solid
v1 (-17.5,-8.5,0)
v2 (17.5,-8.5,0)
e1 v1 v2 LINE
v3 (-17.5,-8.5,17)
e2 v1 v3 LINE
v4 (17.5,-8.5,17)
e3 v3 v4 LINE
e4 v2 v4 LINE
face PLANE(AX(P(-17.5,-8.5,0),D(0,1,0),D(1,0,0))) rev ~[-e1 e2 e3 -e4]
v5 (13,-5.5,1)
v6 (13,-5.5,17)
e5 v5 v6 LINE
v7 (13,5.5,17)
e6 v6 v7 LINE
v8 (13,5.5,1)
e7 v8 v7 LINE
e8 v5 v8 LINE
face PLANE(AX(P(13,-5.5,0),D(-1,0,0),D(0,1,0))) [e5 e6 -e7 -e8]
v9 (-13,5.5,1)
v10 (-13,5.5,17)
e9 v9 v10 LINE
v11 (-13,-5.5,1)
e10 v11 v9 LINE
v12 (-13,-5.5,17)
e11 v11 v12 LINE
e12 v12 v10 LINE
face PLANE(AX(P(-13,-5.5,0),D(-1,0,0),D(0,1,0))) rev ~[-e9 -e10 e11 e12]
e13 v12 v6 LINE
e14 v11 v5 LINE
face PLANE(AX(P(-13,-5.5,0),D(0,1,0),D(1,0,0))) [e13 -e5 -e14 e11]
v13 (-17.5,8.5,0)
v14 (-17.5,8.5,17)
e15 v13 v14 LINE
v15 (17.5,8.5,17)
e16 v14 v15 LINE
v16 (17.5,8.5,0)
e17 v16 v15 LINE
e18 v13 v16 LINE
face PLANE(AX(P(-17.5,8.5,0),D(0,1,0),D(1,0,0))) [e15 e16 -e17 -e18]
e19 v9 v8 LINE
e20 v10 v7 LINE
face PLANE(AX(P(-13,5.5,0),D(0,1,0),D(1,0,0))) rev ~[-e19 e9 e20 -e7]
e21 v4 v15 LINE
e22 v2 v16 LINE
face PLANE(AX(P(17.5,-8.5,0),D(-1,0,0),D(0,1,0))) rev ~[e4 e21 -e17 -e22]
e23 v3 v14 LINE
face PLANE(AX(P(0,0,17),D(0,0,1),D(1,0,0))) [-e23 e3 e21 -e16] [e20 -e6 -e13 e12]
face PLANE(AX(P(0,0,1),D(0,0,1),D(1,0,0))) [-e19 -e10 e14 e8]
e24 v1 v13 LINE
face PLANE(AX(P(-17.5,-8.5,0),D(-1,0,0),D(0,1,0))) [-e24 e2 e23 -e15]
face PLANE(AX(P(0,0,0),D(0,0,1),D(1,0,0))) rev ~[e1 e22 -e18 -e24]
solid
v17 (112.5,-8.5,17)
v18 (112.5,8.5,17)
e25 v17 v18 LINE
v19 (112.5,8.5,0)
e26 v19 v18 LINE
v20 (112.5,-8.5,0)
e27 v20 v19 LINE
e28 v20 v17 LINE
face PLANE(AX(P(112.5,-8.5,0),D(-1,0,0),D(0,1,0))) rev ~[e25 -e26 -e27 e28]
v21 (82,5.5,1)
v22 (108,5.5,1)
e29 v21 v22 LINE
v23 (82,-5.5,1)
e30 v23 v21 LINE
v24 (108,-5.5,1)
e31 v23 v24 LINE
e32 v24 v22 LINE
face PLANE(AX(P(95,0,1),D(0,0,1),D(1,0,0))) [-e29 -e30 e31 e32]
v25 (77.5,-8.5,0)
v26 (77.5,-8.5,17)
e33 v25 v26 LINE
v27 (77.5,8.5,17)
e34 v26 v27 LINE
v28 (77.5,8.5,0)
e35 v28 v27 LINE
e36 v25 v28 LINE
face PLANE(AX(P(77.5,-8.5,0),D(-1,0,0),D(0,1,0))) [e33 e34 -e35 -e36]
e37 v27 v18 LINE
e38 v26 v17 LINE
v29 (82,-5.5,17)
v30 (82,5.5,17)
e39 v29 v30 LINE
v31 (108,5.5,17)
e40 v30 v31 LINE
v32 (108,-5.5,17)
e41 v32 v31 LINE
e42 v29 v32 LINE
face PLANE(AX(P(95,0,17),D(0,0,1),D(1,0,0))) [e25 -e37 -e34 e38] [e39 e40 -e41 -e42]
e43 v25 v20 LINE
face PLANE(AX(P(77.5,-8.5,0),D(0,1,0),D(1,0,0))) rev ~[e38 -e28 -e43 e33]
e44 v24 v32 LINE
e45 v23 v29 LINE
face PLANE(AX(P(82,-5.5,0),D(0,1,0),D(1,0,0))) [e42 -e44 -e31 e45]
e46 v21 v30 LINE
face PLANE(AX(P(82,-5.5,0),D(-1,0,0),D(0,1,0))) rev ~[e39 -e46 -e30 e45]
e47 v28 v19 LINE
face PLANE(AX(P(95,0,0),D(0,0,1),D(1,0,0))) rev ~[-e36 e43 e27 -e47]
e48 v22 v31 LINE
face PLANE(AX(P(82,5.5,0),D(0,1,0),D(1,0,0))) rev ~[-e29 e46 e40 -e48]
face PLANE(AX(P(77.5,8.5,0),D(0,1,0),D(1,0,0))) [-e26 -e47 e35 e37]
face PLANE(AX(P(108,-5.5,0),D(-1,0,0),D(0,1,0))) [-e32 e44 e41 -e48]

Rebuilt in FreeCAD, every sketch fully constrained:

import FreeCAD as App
import Part
import Sketcher

V = App.Vector

doc = App.newDocument("Part")
body = doc.addObject("PartDesign::Body", "Body")

# Sketch on XY plane
sketch1 = body.newObject("Sketcher::SketchObject", "Sketch")
sketch1.AttachmentSupport = (doc.getObject("XY_Plane"), [""])
sketch1.MapMode = "FlatFace"
sketch1.addGeometry(Part.LineSegment(V(-13, 6, 0), V(-13, -6, 0)), False)
sketch1.addGeometry(Part.LineSegment(V(-13, -6, 0), V(13, -6, 0)), False)
sketch1.addGeometry(Part.LineSegment(V(13, -6, 0), V(13, 6, 0)), False)
sketch1.addGeometry(Part.LineSegment(V(13, 6, 0), V(-13, 6, 0)), False)
sketch1.addConstraint(Sketcher.Constraint("Coincident", 0, 2, 1, 1))
sketch1.addConstraint(Sketcher.Constraint("Coincident", 1, 2, 2, 1))
sketch1.addConstraint(Sketcher.Constraint("Coincident", 2, 2, 3, 1))
sketch1.addConstraint(Sketcher.Constraint("Coincident", 3, 2, 0, 1))
sketch1.addConstraint(Sketcher.Constraint("Vertical", 0))
sketch1.addConstraint(Sketcher.Constraint("Horizontal", 1))
sketch1.addConstraint(Sketcher.Constraint("Vertical", 2))
sketch1.addConstraint(Sketcher.Constraint("Horizontal", 3))
sketch1.addConstraint(Sketcher.Constraint("Symmetric", 0, 2, 2, 2, -1, 1))
sketch1.addConstraint(Sketcher.Constraint("DistanceX", 1, 1, 1, 2, 26.0))
sketch1.addConstraint(Sketcher.Constraint("DistanceY", 0, 2, 0, 1, 11.0))
pad1 = body.newObject("PartDesign::Pad", "Pad")
pad1.Profile = sketch1
pad1.Length = 1

# Sketch on XY plane
sketch2 = body.newObject("Sketcher::SketchObject", "Sketch001")
sketch2.AttachmentSupport = (doc.getObject("XY_Plane"), [""])
sketch2.MapMode = "FlatFace"
sketch2.addGeometry(Part.LineSegment(V(-18, 8, 0), V(-18, -8, 0)), False)
sketch2.addGeometry(Part.LineSegment(V(-18, -8, 0), V(18, -8, 0)), False)
sketch2.addGeometry(Part.LineSegment(V(18, -8, 0), V(18, 8, 0)), False)
sketch2.addGeometry(Part.LineSegment(V(18, 8, 0), V(-18, 8, 0)), False)
sketch2.addGeometry(Part.LineSegment(V(13, -6, 0), V(-13, -6, 0)), False)
sketch2.addGeometry(Part.LineSegment(V(-13, -6, 0), V(-13, 6, 0)), False)
sketch2.addGeometry(Part.LineSegment(V(-13, 6, 0), V(13, 6, 0)), False)
sketch2.addGeometry(Part.LineSegment(V(13, 6, 0), V(13, -6, 0)), False)
sketch2.addConstraint(Sketcher.Constraint("Coincident", 0, 2, 1, 1))
sketch2.addConstraint(Sketcher.Constraint("Coincident", 1, 2, 2, 1))
sketch2.addConstraint(Sketcher.Constraint("Coincident", 2, 2, 3, 1))
sketch2.addConstraint(Sketcher.Constraint("Coincident", 3, 2, 0, 1))
sketch2.addConstraint(Sketcher.Constraint("Coincident", 4, 2, 5, 1))
sketch2.addConstraint(Sketcher.Constraint("Coincident", 5, 2, 6, 1))
sketch2.addConstraint(Sketcher.Constraint("Coincident", 6, 2, 7, 1))
sketch2.addConstraint(Sketcher.Constraint("Coincident", 7, 2, 4, 1))
sketch2.addConstraint(Sketcher.Constraint("Vertical", 0))
sketch2.addConstraint(Sketcher.Constraint("Horizontal", 1))
sketch2.addConstraint(Sketcher.Constraint("Vertical", 2))
sketch2.addConstraint(Sketcher.Constraint("Horizontal", 3))
sketch2.addConstraint(Sketcher.Constraint("Horizontal", 4))
sketch2.addConstraint(Sketcher.Constraint("Vertical", 5))
sketch2.addConstraint(Sketcher.Constraint("Horizontal", 6))
sketch2.addConstraint(Sketcher.Constraint("Vertical", 7))
sketch2.addConstraint(Sketcher.Constraint("Symmetric", 0, 2, 2, 2, -1, 1))
sketch2.addConstraint(Sketcher.Constraint("Symmetric", 4, 2, 6, 2, -1, 1))
sketch2.addConstraint(Sketcher.Constraint("DistanceX", 1, 1, 1, 2, 35.0))
sketch2.addConstraint(Sketcher.Constraint("DistanceX", 4, 2, 4, 1, 26.0))
sketch2.addConstraint(Sketcher.Constraint("DistanceY", 0, 2, 0, 1, 17.0))
sketch2.addConstraint(Sketcher.Constraint("DistanceY", 5, 1, 5, 2, 11.0))
pad2 = body.newObject("PartDesign::Pad", "Pad001")
pad2.Profile = sketch2
pad2.Length = 17
body2 = doc.addObject("PartDesign::Body", "Body001")

# Sketch on XY plane
sketch3 = body2.newObject("Sketcher::SketchObject", "Sketch002")
sketch3.AttachmentSupport = (doc.getObject("XY_Plane001"), [""])
sketch3.MapMode = "FlatFace"
sketch3.addGeometry(Part.LineSegment(V(82, 6, 0), V(82, -6, 0)), False)
sketch3.addGeometry(Part.LineSegment(V(82, -6, 0), V(108, -6, 0)), False)
sketch3.addGeometry(Part.LineSegment(V(108, -6, 0), V(108, 6, 0)), False)
sketch3.addGeometry(Part.LineSegment(V(108, 6, 0), V(82, 6, 0)), False)
sketch3.addConstraint(Sketcher.Constraint("Coincident", 0, 2, 1, 1))
sketch3.addConstraint(Sketcher.Constraint("Coincident", 1, 2, 2, 1))
sketch3.addConstraint(Sketcher.Constraint("Coincident", 2, 2, 3, 1))
sketch3.addConstraint(Sketcher.Constraint("Coincident", 3, 2, 0, 1))
sketch3.addConstraint(Sketcher.Constraint("Vertical", 0))
sketch3.addConstraint(Sketcher.Constraint("Horizontal", 1))
sketch3.addConstraint(Sketcher.Constraint("Vertical", 2))
sketch3.addConstraint(Sketcher.Constraint("Horizontal", 3))
sketch3.addConstraint(Sketcher.Constraint("DistanceX", 1, 1, 1, 2, 26.0))
sketch3.addConstraint(Sketcher.Constraint("DistanceY", 0, 2, 0, 1, 11.0))
sketch3.addConstraint(Sketcher.Constraint("DistanceX", -1, 1, 0, 2, 82.0))
sketch3.addConstraint(Sketcher.Constraint("DistanceY", 0, 2, -1, 1, 5.5))
pad3 = body2.newObject("PartDesign::Pad", "Pad002")
pad3.Profile = sketch3
pad3.Length = 1

# Sketch on XY plane
sketch4 = body2.newObject("Sketcher::SketchObject", "Sketch003")
sketch4.AttachmentSupport = (doc.getObject("XY_Plane001"), [""])
sketch4.MapMode = "FlatFace"
sketch4.addGeometry(Part.LineSegment(V(78, 8, 0), V(78, -8, 0)), False)
sketch4.addGeometry(Part.LineSegment(V(78, -8, 0), V(112, -8, 0)), False)
sketch4.addGeometry(Part.LineSegment(V(112, -8, 0), V(112, 8, 0)), False)
sketch4.addGeometry(Part.LineSegment(V(112, 8, 0), V(78, 8, 0)), False)
sketch4.addGeometry(Part.LineSegment(V(108, -6, 0), V(82, -6, 0)), False)
sketch4.addGeometry(Part.LineSegment(V(82, -6, 0), V(82, 6, 0)), False)
sketch4.addGeometry(Part.LineSegment(V(82, 6, 0), V(108, 6, 0)), False)
sketch4.addGeometry(Part.LineSegment(V(108, 6, 0), V(108, -6, 0)), False)
sketch4.addConstraint(Sketcher.Constraint("Coincident", 0, 2, 1, 1))
sketch4.addConstraint(Sketcher.Constraint("Coincident", 1, 2, 2, 1))
sketch4.addConstraint(Sketcher.Constraint("Coincident", 2, 2, 3, 1))
sketch4.addConstraint(Sketcher.Constraint("Coincident", 3, 2, 0, 1))
sketch4.addConstraint(Sketcher.Constraint("Coincident", 4, 2, 5, 1))
sketch4.addConstraint(Sketcher.Constraint("Coincident", 5, 2, 6, 1))
sketch4.addConstraint(Sketcher.Constraint("Coincident", 6, 2, 7, 1))
sketch4.addConstraint(Sketcher.Constraint("Coincident", 7, 2, 4, 1))
sketch4.addConstraint(Sketcher.Constraint("Vertical", 0))
sketch4.addConstraint(Sketcher.Constraint("Horizontal", 1))
sketch4.addConstraint(Sketcher.Constraint("Vertical", 2))
sketch4.addConstraint(Sketcher.Constraint("Horizontal", 3))
sketch4.addConstraint(Sketcher.Constraint("Horizontal", 4))
sketch4.addConstraint(Sketcher.Constraint("Vertical", 5))
sketch4.addConstraint(Sketcher.Constraint("Horizontal", 6))
sketch4.addConstraint(Sketcher.Constraint("Vertical", 7))
sketch4.addConstraint(Sketcher.Constraint("DistanceX", 1, 1, 1, 2, 35.0))
sketch4.addConstraint(Sketcher.Constraint("DistanceX", 4, 2, 4, 1, 26.0))
sketch4.addConstraint(Sketcher.Constraint("DistanceY", 0, 2, 0, 1, 17.0))
sketch4.addConstraint(Sketcher.Constraint("DistanceY", 5, 1, 5, 2, 11.0))
sketch4.addConstraint(Sketcher.Constraint("DistanceX", -1, 1, 4, 2, 82.0))
sketch4.addConstraint(Sketcher.Constraint("DistanceY", 0, 2, 4, 2, 3.0))
sketch4.addConstraint(Sketcher.Constraint("DistanceX", -1, 1, 0, 2, 77.5))
sketch4.addConstraint(Sketcher.Constraint("DistanceY", 0, 2, -1, 1, 8.5))
pad4 = body2.newObject("PartDesign::Pad", "Pad003")
pad4.Profile = sketch4
pad4.Length = 17

doc.recompute()
